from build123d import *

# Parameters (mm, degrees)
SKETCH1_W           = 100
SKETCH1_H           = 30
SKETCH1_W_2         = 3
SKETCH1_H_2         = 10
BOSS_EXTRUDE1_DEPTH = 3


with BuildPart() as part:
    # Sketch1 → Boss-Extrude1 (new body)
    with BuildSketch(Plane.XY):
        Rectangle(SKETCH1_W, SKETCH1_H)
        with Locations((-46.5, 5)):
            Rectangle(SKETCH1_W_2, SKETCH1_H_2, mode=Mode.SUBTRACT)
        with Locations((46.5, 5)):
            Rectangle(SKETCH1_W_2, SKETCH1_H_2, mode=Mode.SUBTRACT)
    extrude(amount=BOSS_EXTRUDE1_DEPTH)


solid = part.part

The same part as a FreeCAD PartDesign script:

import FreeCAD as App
import Part
import Sketcher

V = App.Vector
Q = App.Units.Quantity


def add_polygon(sketch, points):
    """Adds a closed chain of lines whose ends are joined by coincident constraints."""
    first, n = sketch.GeometryCount, len(points)
    for a, b in zip(points, points[1:] + points[:1]):
        sketch.addGeometry(Part.LineSegment(App.Vector(*a, 0), App.Vector(*b, 0)), False)
    for i in range(n):
        sketch.addConstraint(Sketcher.Constraint("Coincident", first + i, 2, first + (i + 1) % n, 1))

doc = App.newDocument("Part")
body = doc.addObject("PartDesign::Body", "Body")

# Sketch on XY plane
sketch1 = body.newObject("Sketcher::SketchObject", "Sketch")
sketch1.AttachmentSupport = (doc.getObject("XY_Plane"), [""])
sketch1.MapMode = "FlatFace"
add_polygon(sketch1, [(-50, 15), (-50, -15), (50, -15), (50, 15)])  # lines 0-3
add_polygon(sketch1, [(-45, 0), (-48, 0), (-48, 10), (-45, 10)])  # lines 4-7
add_polygon(sketch1, [(48, 0), (45, 0), (45, 10), (48, 10)])  # lines 8-11
sketch1.addConstraint([
    Sketcher.Constraint("Vertical", 0),
    Sketcher.Constraint("Horizontal", 1),
    Sketcher.Constraint("Vertical", 2),
    Sketcher.Constraint("Horizontal", 3),
    Sketcher.Constraint("Horizontal", 4),
    Sketcher.Constraint("Vertical", 5),
    Sketcher.Constraint("Horizontal", 6),
    Sketcher.Constraint("Vertical", 7),
    Sketcher.Constraint("Horizontal", 8),
    Sketcher.Constraint("Vertical", 9),
    Sketcher.Constraint("Horizontal", 10),
    Sketcher.Constraint("Vertical", 11),
    Sketcher.Constraint("Symmetric", 0, 2, 2, 2, -1, 1),
    Sketcher.Constraint("Symmetric", 7, 2, 8, 2, -1, 1),
    Sketcher.Constraint("Symmetric", 5, 2, 10, 2, -2),
    Sketcher.Constraint("PointOnObject", 4, 2, -1),
    Sketcher.Constraint("DistanceX", 1, 1, 1, 2, Q("100 mm")),
    Sketcher.Constraint("DistanceX", 4, 2, 4, 1, Q("3 mm")),
    Sketcher.Constraint("DistanceY", 0, 2, 0, 1, Q("30 mm")),
    Sketcher.Constraint("DistanceY", 5, 1, 5, 2, Q("10 mm")),
    Sketcher.Constraint("DistanceX", 4, 2, -1, 1, Q("48 mm")),
])
pad1 = body.newObject("PartDesign::Pad", "Pad")
pad1.Profile = sketch1
pad1.Length = 3

doc.recompute()
